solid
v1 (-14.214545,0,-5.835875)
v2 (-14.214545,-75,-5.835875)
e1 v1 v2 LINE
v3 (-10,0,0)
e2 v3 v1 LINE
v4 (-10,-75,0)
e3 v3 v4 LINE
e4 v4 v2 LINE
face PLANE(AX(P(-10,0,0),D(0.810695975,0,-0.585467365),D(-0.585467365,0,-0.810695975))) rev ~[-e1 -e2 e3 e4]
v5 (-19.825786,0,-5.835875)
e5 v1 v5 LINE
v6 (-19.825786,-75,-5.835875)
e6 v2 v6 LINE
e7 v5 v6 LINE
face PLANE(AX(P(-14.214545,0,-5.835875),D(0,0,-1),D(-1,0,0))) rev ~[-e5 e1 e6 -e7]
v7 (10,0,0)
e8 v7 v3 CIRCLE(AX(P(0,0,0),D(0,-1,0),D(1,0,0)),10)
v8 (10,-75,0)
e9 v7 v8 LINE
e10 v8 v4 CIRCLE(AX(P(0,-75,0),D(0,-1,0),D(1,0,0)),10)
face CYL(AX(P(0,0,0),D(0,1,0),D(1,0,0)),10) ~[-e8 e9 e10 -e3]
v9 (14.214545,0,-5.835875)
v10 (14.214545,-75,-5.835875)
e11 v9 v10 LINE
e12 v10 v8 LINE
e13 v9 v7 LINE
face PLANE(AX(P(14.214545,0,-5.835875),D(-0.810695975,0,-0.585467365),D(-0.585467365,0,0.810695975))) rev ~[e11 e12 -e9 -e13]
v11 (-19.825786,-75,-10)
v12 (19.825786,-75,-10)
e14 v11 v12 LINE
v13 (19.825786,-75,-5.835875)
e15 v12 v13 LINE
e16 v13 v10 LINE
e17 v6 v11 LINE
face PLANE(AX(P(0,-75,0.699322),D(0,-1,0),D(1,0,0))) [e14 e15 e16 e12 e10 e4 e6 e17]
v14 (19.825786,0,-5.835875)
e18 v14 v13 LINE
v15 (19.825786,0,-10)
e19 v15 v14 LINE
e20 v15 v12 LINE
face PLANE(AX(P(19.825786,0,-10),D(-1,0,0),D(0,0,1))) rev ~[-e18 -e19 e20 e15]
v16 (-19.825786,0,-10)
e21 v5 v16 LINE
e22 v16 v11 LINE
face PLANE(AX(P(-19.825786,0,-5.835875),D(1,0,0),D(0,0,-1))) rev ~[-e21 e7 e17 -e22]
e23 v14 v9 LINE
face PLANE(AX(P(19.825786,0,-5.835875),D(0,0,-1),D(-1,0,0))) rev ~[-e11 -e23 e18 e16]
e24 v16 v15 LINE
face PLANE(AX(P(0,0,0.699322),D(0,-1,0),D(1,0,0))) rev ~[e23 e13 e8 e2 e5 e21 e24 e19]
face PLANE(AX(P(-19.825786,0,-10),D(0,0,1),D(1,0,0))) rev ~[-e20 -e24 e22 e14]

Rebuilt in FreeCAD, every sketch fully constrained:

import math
import FreeCAD as App
import Part
import Sketcher
from FreeCAD import Vector

doc = App.newDocument("Part")
body = doc.addObject("PartDesign::Body", "Body")

# Sketch on XZ plane
sketch1 = body.newObject("Sketcher::SketchObject", "Sketch")
sketch1.AttachmentSupport = (doc.getObject("XZ_Plane"), [""])
sketch1.MapMode = "FlatFace"
sketch1.addGeometry(Part.ArcOfCircle(Part.Circle(Vector(0, 0, 0), Vector(0, 0, 1), 10), math.radians(0), math.radians(180)), False)
sketch1.addGeometry(Part.LineSegment(Vector(-10, 0, 0), Vector(-14.2, -5.8, 0)), False)
sketch1.addGeometry(Part.LineSegment(Vector(-14.2, -5.8, 0), Vector(-19.8, -5.8, 0)), False)
sketch1.addGeometry(Part.LineSegment(Vector(-19.8, -5.8, 0), Vector(-19.8, -10, 0)), False)
sketch1.addGeometry(Part.LineSegment(Vector(-19.8, -10, 0), Vector(19.8, -10, 0)), False)
sketch1.addGeometry(Part.LineSegment(Vector(19.8, -10, 0), Vector(19.8, -5.8, 0)), False)
sketch1.addGeometry(Part.LineSegment(Vector(19.8, -5.8, 0), Vector(14.2, -5.8, 0)), False)
sketch1.addGeometry(Part.LineSegment(Vector(14.2, -5.8, 0), Vector(10, 0, 0)), False)
sketch1.addConstraint(Sketcher.Constraint("Coincident", 0, 2, 1, 1))
sketch1.addConstraint(Sketcher.Constraint("Coincident", 1, 2, 2, 1))
sketch1.addConstraint(Sketcher.Constraint("Coincident", 2, 2, 3, 1))
sketch1.addConstraint(Sketcher.Constraint("Coincident", 3, 2, 4, 1))
sketch1.addConstraint(Sketcher.Constraint("Coincident", 4, 2, 5, 1))
sketch1.addConstraint(Sketcher.Constraint("Coincident", 5, 2, 6, 1))
sketch1.addConstraint(Sketcher.Constraint("Coincident", 6, 2, 7, 1))
sketch1.addConstraint(Sketcher.Constraint("Coincident", 7, 2, 0, 1))
sketch1.addConstraint(Sketcher.Constraint("Horizontal", 2))
sketch1.addConstraint(Sketcher.Constraint("Vertical", 3))
sketch1.addConstraint(Sketcher.Constraint("Horizontal", 4))
sketch1.addConstraint(Sketcher.Constraint("Vertical", 5))
sketch1.addConstraint(Sketcher.Constraint("Horizontal", 6))
sketch1.addConstraint(Sketcher.Constraint("Coincident", 0, 3, -1, 1))
sketch1.addConstraint(Sketcher.Constraint("Symmetric", 2, 2, 5, 2, -2))
sketch1.addConstraint(Sketcher.Constraint("PointOnObject", 0, 2, -1))
sketch1.addConstraint(Sketcher.Constraint("PointOnObject", 7, 2, -1))
sketch1.addConstraint(Sketcher.Constraint("Equal", 2, 6))
sketch1.addConstraint(Sketcher.Constraint("Radius", 0, 10.0))
sketch1.addConstraint(Sketcher.Constraint("DistanceY", 3, 2, -1, 1, 10.0))
sketch1.addConstraint(Sketcher.Constraint("Distance", 1, 7.198599))
sketch1.addConstraint(Sketcher.Constraint("DistanceX", 2, 2, 2, 1, 5.611241))
sketch1.addConstraint(Sketcher.Constraint("DistanceX", 4, 1, 4, 2, 39.651572))
pad1 = body.newObject("PartDesign::Pad", "Pad")
pad1.Profile = sketch1
pad1.Length = 75

doc.recompute()
